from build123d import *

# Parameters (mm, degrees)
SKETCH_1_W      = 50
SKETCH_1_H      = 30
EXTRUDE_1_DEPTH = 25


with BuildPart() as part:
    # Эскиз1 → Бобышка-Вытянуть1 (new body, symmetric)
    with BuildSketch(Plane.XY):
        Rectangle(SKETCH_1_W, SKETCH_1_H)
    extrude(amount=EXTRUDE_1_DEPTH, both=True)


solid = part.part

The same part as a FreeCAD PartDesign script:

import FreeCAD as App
import Part
import Sketcher
from FreeCAD import Vector
Q = App.Units.Quantity

doc = App.newDocument("Part")
params = doc.addObject("Spreadsheet::Sheet", "Params")
for row, (alias, value) in enumerate([
    ("sketch1_width", "50 mm"),
    ("sketch1_height", "30 mm"),
    ("pad1_length", "50 mm"),
], start=1):
    params.set(f"A{row}", alias)
    params.set(f"B{row}", "=" + value)
    params.setAlias(f"B{row}", alias)

body = doc.addObject("PartDesign::Body", "Body")

sketch1 = body.newObject("Sketcher::SketchObject", "Sketch")
sketch1.AttachmentSupport = (doc.getObject("XY_Plane"), [""])
sketch1.MapMode = "FlatFace"
sketch1.addGeometry(Part.LineSegment(Vector(-25, 15, 0), Vector(-25, -15, 0)), False)
sketch1.addGeometry(Part.LineSegment(Vector(-25, -15, 0), Vector(25, -15, 0)), False)
sketch1.addGeometry(Part.LineSegment(Vector(25, -15, 0), Vector(25, 15, 0)), False)
sketch1.addGeometry(Part.LineSegment(Vector(25, 15, 0), Vector(-25, 15, 0)), False)
sketch1.addConstraint(Sketcher.Constraint("Coincident", 0, 2, 1, 1))
sketch1.addConstraint(Sketcher.Constraint("Coincident", 1, 2, 2, 1))
sketch1.addConstraint(Sketcher.Constraint("Coincident", 2, 2, 3, 1))
sketch1.addConstraint(Sketcher.Constraint("Coincident", 3, 2, 0, 1))
sketch1.addConstraint(Sketcher.Constraint("Vertical", 0))
sketch1.addConstraint(Sketcher.Constraint("Horizontal", 1))
sketch1.addConstraint(Sketcher.Constraint("Vertical", 2))
sketch1.addConstraint(Sketcher.Constraint("Horizontal", 3))
sketch1.addConstraint(Sketcher.Constraint("Symmetric", 0, 2, 2, 2, -1, 1))
sketch1.addConstraint(Sketcher.Constraint("DistanceX", 1, 1, 1, 2, Q("50 mm")))
sketch1.addConstraint(Sketcher.Constraint("DistanceY", 0, 2, 0, 1, Q("30 mm")))
sketch1.setExpression("Constraints[9]", "Params.sketch1_width")
sketch1.setExpression("Constraints[10]", "Params.sketch1_height")
pad1 = body.newObject("PartDesign::Pad", "Pad")
pad1.Profile = sketch1
pad1.setExpression("Length", "Params.pad1_length")
pad1.Midplane = True

doc.recompute()
